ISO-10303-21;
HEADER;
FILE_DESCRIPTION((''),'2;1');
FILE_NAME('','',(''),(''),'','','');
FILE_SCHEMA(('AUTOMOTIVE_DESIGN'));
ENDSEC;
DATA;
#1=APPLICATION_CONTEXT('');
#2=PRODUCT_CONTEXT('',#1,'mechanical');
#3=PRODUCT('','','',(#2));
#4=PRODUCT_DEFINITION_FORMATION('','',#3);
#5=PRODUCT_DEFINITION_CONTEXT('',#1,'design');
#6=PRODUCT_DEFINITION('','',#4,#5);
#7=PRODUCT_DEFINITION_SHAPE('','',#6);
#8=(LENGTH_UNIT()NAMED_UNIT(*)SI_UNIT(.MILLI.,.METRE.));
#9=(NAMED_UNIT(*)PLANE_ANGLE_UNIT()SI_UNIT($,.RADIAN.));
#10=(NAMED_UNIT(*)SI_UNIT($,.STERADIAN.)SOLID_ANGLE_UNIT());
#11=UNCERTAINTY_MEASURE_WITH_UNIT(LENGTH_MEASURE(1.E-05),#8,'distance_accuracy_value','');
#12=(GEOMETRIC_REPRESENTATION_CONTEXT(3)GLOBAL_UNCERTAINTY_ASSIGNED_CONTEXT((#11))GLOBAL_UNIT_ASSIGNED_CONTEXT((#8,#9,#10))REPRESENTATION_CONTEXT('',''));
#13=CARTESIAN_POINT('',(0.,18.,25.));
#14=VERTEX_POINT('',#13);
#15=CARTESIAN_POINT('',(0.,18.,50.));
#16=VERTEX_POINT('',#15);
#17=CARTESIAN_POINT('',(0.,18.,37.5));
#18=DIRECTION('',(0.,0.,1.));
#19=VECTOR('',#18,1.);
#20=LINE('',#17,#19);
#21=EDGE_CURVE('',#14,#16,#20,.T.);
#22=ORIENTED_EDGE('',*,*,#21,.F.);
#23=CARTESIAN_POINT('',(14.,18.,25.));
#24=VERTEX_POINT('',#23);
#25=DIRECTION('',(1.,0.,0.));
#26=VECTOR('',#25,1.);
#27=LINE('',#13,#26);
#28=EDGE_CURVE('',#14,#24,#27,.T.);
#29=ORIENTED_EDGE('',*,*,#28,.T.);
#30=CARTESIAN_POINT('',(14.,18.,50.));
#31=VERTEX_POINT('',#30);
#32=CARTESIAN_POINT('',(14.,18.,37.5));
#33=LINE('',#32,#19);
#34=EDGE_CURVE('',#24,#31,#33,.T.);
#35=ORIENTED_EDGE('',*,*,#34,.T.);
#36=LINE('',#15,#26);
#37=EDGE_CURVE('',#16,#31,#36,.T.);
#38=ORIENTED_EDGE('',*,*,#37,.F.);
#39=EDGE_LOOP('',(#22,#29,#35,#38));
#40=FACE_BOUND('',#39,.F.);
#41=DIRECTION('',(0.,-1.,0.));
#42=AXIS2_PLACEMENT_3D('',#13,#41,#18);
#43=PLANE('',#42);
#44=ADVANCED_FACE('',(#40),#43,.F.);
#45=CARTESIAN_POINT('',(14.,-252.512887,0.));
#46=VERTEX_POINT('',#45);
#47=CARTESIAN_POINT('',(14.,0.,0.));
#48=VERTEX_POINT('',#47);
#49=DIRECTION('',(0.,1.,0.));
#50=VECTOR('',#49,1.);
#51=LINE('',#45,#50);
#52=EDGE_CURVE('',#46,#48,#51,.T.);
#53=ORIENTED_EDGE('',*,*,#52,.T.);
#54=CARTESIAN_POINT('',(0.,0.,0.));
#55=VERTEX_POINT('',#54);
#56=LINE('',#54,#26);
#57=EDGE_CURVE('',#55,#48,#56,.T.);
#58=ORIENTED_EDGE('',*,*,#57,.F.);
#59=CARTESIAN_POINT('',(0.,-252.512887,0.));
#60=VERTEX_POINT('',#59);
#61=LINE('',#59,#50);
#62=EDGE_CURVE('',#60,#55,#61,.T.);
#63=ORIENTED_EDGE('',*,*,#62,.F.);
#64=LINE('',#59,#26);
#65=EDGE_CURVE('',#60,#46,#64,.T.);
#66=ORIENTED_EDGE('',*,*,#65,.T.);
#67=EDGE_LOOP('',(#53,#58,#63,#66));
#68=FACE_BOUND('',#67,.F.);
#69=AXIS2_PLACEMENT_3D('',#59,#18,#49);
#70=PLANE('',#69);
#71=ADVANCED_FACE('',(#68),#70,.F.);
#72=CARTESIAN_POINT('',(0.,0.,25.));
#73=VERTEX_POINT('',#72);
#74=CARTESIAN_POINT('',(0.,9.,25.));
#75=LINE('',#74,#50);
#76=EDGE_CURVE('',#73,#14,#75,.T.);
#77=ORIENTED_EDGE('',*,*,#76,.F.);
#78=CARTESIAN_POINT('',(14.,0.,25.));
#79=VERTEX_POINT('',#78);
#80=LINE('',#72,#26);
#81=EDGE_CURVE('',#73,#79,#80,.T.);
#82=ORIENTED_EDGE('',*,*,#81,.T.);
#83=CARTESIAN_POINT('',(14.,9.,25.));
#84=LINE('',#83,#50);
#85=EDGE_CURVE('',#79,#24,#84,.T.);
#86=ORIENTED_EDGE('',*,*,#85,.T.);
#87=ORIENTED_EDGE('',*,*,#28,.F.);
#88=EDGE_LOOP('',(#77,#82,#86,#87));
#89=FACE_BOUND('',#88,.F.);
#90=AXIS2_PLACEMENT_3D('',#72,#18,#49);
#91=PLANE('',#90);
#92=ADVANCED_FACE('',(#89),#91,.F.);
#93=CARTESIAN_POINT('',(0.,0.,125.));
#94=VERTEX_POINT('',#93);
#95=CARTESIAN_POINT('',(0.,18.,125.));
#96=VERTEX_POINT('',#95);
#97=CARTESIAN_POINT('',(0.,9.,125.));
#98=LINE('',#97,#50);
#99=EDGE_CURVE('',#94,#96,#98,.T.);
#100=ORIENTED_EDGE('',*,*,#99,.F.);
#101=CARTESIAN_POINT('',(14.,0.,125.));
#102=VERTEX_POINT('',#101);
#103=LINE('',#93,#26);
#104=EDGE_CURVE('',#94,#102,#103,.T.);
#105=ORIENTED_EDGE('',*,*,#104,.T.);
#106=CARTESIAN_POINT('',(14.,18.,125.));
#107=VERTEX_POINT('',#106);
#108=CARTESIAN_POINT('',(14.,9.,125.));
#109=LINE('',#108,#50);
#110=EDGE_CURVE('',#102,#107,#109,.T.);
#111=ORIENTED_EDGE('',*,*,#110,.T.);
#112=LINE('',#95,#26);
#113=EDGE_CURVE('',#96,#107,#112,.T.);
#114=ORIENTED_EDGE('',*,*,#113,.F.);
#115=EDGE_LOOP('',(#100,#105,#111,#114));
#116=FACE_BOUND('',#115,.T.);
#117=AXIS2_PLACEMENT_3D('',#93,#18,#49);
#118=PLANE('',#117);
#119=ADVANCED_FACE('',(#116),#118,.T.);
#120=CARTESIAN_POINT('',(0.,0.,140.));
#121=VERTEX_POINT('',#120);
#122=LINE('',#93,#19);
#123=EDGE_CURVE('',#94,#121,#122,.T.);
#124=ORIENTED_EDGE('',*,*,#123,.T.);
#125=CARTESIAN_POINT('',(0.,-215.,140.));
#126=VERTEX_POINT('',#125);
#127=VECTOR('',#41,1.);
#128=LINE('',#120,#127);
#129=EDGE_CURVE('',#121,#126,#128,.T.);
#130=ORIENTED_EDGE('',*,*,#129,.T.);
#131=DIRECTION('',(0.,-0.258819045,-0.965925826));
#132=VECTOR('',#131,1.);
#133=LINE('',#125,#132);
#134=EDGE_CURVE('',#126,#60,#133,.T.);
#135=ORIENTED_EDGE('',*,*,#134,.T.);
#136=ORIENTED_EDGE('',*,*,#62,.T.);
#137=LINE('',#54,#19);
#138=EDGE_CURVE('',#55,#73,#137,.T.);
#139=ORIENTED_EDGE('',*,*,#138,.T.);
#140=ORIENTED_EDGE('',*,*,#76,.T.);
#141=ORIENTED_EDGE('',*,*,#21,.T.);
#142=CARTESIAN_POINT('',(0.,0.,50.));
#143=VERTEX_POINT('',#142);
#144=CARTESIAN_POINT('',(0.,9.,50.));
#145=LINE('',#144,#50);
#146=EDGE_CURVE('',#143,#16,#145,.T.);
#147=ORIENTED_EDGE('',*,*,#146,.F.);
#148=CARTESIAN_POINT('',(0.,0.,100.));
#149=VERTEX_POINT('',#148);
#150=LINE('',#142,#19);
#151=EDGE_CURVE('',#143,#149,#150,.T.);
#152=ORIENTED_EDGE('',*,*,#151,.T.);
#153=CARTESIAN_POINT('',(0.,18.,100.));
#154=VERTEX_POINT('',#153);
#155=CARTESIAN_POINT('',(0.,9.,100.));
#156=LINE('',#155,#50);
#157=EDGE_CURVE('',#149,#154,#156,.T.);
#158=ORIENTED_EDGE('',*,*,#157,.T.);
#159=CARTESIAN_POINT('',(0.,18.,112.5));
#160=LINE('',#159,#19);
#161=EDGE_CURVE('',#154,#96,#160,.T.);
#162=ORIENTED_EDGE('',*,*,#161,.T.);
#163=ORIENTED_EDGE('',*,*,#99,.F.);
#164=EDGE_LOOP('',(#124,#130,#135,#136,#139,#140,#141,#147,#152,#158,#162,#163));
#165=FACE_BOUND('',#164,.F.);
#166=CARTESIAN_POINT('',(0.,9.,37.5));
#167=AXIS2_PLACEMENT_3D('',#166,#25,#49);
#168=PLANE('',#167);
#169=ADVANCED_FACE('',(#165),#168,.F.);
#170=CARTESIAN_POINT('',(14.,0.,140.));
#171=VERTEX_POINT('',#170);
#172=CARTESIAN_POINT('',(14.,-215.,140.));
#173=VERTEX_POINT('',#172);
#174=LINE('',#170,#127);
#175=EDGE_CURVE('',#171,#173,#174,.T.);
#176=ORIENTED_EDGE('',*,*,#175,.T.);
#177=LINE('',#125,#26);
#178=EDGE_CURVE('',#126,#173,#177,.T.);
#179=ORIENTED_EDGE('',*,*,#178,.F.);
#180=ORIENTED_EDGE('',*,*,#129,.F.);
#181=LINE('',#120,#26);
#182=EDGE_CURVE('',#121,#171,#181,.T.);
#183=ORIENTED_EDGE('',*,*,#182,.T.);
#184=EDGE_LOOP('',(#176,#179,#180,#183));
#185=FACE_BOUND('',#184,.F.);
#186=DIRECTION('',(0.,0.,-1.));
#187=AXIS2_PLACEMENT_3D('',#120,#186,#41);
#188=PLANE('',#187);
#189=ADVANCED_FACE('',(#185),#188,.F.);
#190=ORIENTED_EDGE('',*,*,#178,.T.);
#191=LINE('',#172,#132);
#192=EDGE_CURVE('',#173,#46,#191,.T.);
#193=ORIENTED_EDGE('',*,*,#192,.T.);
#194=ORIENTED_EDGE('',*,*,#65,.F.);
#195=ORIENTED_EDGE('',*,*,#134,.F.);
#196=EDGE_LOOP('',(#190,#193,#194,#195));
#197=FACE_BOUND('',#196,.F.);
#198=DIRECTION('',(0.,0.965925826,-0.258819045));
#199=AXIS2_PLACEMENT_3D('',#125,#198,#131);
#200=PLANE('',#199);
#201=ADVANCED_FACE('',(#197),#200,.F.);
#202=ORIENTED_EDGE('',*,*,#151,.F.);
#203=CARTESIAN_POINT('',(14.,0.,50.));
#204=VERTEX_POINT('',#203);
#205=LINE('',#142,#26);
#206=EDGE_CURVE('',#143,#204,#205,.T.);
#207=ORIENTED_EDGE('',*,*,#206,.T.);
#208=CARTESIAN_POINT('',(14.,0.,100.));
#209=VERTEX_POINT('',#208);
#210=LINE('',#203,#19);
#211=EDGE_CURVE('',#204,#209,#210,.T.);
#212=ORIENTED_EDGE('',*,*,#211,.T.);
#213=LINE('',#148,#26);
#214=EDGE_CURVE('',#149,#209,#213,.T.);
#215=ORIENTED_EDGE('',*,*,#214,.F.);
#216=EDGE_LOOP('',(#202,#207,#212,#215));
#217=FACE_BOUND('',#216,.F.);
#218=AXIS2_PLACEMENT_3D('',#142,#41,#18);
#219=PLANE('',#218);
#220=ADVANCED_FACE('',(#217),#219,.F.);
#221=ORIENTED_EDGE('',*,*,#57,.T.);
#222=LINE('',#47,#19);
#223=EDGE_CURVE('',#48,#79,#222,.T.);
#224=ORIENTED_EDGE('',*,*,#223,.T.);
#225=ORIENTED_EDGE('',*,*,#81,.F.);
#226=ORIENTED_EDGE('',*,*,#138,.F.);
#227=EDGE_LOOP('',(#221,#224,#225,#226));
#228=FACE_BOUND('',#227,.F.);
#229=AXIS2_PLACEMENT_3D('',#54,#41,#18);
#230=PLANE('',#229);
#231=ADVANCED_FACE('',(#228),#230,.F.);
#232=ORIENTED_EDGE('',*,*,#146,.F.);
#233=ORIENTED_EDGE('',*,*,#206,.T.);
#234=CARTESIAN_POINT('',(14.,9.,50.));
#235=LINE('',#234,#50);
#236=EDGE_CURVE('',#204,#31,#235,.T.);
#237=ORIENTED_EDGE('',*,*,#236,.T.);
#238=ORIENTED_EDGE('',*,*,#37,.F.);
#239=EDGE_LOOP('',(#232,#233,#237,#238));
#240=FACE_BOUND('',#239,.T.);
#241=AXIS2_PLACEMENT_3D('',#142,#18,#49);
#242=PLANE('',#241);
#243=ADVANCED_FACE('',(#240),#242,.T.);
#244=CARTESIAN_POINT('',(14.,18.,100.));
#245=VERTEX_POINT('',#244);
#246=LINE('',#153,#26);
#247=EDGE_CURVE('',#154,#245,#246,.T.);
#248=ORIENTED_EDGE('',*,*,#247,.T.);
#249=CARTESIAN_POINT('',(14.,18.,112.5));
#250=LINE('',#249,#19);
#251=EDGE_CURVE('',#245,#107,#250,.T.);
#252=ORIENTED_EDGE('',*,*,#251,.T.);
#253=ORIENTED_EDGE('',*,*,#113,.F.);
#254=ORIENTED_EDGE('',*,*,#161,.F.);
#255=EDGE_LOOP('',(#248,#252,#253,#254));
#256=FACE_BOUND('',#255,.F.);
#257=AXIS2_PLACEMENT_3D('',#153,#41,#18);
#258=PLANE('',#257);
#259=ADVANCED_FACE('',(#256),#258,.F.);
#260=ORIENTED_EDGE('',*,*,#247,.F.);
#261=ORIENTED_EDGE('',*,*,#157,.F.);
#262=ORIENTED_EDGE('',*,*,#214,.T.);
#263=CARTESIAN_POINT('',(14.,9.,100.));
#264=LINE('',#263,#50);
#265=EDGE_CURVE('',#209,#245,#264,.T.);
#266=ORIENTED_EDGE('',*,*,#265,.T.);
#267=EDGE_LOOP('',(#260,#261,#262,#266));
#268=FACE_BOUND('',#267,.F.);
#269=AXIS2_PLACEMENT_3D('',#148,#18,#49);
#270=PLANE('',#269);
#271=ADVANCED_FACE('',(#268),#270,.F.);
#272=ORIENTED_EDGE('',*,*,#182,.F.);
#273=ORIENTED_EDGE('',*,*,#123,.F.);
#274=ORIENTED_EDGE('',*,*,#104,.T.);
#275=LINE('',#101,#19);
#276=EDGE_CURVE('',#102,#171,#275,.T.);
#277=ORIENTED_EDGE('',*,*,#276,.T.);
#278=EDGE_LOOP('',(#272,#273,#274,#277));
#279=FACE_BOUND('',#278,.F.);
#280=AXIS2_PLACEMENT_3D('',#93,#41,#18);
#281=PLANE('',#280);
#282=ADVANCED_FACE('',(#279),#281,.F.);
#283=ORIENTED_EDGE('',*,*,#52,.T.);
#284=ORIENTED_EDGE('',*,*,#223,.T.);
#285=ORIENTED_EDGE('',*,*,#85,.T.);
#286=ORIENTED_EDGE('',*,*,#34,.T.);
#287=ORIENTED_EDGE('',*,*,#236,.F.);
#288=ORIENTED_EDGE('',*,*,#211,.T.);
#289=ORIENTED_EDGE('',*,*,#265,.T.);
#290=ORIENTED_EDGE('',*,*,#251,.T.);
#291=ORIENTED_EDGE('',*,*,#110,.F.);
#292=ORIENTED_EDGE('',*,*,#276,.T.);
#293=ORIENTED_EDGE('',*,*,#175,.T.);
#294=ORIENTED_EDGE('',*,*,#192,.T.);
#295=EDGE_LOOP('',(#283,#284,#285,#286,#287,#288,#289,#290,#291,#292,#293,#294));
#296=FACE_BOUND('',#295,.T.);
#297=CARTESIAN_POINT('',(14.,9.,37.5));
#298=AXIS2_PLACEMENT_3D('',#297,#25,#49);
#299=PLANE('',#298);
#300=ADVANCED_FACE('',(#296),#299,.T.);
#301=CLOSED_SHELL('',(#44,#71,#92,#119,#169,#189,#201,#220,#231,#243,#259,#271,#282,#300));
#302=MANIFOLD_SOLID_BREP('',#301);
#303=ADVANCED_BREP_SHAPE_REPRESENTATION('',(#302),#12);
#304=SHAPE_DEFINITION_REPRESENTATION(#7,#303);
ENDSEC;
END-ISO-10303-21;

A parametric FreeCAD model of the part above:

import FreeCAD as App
import Part
import Sketcher

V = App.Vector
Q = App.Units.Quantity


def add_polygon(sketch, points):
    """Adds a closed chain of lines whose ends are joined by coincident constraints."""
    first, n = sketch.GeometryCount, len(points)
    for a, b in zip(points, points[1:] + points[:1]):
        sketch.addGeometry(Part.LineSegment(App.Vector(*a, 0), App.Vector(*b, 0)), False)
    for i in range(n):
        sketch.addConstraint(Sketcher.Constraint("Coincident", first + i, 2, first + (i + 1) % n, 1))

doc = App.newDocument("Part")
params = doc.addObject("Spreadsheet::Sheet", "Params")
for row, (alias, value) in enumerate([
    ("sketch1_width", "18 mm"),
    ("sketch1_width2", "215 mm"),
    ("sketch1_height", "25 mm"),
    ("sketch1_height2", "50 mm"),
    ("sketch1_height3", "15 mm"),
    ("pad1_length", "14 mm"),
], start=1):
    params.set(f"A{row}", alias)
    params.set(f"B{row}", "=" + value)
    params.setAlias(f"B{row}", alias)

body = doc.addObject("PartDesign::Body", "Body")

# Sketch on YZ plane
sketch1 = body.newObject("Sketcher::SketchObject", "Sketch")
sketch1.AttachmentSupport = (doc.getObject("YZ_Plane"), [""])
sketch1.MapMode = "FlatFace"
add_polygon(sketch1, [(0, 25), (18, 25), (18, 50), (0, 50), (0, 100), (18, 100), (18, 125), (0, 125), (0, 140), (-215, 140), (-253, 0), (0, 0)])  # lines 0-11
sketch1.addConstraint(Sketcher.Constraint("Horizontal", 0))
sketch1.addConstraint(Sketcher.Constraint("Vertical", 1))
sketch1.addConstraint(Sketcher.Constraint("Horizontal", 2))
sketch1.addConstraint(Sketcher.Constraint("Vertical", 3))
sketch1.addConstraint(Sketcher.Constraint("Horizontal", 4))
sketch1.addConstraint(Sketcher.Constraint("Vertical", 5))
sketch1.addConstraint(Sketcher.Constraint("Horizontal", 6))
sketch1.addConstraint(Sketcher.Constraint("Vertical", 7))
sketch1.addConstraint(Sketcher.Constraint("Horizontal", 8))
sketch1.addConstraint(Sketcher.Constraint("Horizontal", 10))
sketch1.addConstraint(Sketcher.Constraint("Vertical", 11))
sketch1.addConstraint(Sketcher.Constraint("Coincident", 10, 2, -1, 1))
sketch1.addConstraint(Sketcher.Constraint("PointOnObject", 2, 2, -2))
sketch1.addConstraint(Sketcher.Constraint("PointOnObject", 6, 2, -2))
sketch1.addConstraint(Sketcher.Constraint("Vertical", 1, 2, 4, 2))
sketch1.addConstraint(Sketcher.Constraint("Equal", 1, 5))
sketch1.addConstraint(Sketcher.Constraint("Equal", 5, 11))
sketch1.addConstraint(Sketcher.Constraint("DistanceX", 0, 1, 0, 2, Q("18 mm")))
sketch1.addConstraint(Sketcher.Constraint("DistanceX", 8, 2, 8, 1, Q("215 mm")))
sketch1.addConstraint(Sketcher.Constraint("DistanceY", 1, 1, 1, 2, Q("25 mm")))
sketch1.addConstraint(Sketcher.Constraint("DistanceY", 3, 1, 3, 2, Q("50 mm")))
sketch1.addConstraint(Sketcher.Constraint("DistanceY", 7, 1, 7, 2, Q("15 mm")))
sketch1.addConstraint(Sketcher.Constraint("Angle", 9, Q("-105 deg")))
sketch1.setExpression("Constraints[29]", "Params.sketch1_width")
sketch1.setExpression("Constraints[30]", "Params.sketch1_width2")
sketch1.setExpression("Constraints[31]", "Params.sketch1_height")
sketch1.setExpression("Constraints[32]", "Params.sketch1_height2")
sketch1.setExpression("Constraints[33]", "Params.sketch1_height3")
pad1 = body.newObject("PartDesign::Pad", "Pad")
pad1.Profile = sketch1
pad1.setExpression("Length", "Params.pad1_length")

doc.recompute()
